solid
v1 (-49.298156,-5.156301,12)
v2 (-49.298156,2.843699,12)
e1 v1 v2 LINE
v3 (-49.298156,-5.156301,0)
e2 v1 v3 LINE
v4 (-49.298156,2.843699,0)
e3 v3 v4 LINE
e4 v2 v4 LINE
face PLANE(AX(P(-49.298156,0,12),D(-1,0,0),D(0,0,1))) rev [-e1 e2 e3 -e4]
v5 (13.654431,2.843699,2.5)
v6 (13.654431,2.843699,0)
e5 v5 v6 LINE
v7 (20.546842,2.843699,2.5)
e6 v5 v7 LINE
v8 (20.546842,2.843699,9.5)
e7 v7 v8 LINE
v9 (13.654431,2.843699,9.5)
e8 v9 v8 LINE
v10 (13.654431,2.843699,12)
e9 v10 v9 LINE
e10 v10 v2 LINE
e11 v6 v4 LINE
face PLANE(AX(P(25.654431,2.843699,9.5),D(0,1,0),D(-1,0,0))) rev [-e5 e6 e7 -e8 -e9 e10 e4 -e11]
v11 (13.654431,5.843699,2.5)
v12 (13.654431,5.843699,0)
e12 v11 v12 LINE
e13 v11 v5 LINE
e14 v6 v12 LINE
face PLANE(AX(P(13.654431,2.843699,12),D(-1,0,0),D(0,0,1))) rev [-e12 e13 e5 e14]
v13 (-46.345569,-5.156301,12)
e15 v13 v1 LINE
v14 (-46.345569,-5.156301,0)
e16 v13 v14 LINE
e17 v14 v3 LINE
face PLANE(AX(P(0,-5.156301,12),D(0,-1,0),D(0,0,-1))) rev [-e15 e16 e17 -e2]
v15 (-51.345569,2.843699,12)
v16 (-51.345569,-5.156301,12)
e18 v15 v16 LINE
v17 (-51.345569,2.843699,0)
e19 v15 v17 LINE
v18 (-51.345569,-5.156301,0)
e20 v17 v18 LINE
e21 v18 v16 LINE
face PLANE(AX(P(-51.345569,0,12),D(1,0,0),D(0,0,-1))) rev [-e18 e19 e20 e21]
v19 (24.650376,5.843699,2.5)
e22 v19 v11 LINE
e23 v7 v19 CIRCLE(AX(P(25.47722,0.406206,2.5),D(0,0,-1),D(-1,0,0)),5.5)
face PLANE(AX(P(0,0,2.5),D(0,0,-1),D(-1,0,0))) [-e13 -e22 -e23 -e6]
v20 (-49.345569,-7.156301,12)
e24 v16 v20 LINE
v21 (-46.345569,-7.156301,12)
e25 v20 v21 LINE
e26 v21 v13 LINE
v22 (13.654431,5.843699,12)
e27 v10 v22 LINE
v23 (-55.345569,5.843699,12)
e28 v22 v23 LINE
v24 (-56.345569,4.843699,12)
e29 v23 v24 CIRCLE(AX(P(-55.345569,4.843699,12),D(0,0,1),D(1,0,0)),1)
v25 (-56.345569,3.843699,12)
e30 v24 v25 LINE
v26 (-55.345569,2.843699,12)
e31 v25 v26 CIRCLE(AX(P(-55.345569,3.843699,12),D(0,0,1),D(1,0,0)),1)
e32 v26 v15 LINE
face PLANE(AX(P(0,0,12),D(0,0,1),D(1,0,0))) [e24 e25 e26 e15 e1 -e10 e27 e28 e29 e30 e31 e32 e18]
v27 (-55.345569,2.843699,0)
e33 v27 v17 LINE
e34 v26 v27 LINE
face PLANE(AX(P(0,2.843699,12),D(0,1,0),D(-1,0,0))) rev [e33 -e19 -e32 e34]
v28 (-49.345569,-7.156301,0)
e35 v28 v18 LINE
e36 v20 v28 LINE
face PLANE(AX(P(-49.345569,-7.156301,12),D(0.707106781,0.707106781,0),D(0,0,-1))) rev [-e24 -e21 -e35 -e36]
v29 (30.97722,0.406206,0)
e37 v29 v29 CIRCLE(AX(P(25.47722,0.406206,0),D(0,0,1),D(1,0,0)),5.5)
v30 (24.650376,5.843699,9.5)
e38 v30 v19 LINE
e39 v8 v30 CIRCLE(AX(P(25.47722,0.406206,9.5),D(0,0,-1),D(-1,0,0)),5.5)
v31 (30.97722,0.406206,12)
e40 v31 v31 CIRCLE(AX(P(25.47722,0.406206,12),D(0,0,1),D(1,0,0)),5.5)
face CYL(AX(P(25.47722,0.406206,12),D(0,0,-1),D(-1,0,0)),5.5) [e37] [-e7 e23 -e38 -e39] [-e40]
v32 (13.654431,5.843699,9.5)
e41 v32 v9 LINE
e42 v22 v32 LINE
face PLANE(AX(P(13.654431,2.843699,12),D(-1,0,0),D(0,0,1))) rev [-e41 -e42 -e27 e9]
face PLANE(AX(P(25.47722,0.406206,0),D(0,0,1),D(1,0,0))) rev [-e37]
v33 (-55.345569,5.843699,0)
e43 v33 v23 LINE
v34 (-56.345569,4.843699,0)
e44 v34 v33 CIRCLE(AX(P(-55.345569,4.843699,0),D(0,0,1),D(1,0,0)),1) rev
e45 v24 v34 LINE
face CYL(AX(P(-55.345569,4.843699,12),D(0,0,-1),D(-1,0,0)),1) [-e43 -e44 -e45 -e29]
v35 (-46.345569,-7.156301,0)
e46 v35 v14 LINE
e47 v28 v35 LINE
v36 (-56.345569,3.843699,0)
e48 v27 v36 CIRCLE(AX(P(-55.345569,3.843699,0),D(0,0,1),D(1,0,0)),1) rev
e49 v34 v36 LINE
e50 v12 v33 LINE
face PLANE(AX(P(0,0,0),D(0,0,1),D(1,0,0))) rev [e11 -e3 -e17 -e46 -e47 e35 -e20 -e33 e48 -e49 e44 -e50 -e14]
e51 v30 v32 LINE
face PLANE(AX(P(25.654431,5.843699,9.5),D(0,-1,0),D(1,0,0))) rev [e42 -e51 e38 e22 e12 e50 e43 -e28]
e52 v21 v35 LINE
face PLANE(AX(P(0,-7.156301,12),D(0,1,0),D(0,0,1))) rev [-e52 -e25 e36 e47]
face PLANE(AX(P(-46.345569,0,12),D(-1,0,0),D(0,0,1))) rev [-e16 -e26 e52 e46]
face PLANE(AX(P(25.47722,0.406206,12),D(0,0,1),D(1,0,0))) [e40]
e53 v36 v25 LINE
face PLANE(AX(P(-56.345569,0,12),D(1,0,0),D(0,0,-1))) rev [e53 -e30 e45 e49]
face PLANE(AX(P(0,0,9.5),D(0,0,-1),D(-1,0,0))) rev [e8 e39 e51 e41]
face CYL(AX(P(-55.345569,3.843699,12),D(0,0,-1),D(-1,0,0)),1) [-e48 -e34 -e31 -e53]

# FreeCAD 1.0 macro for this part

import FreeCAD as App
import Part
import Sketcher
from FreeCAD import Vector
Q = App.Units.Quantity


def edges_at(feature, points):
    """Names of the edges that pass closest to the given points."""
    edges = feature.Shape.Edges
    near = lambda p: min(range(len(edges)), key=lambda i: edges[i].distToShape(Part.Vertex(*p))[0])
    return sorted({f"Edge{near(p) + 1}" for p in points})


def add_polygon(sketch, points):
    """Adds a closed chain of lines whose ends are joined by coincident constraints."""
    first, n = sketch.GeometryCount, len(points)
    for a, b in zip(points, points[1:] + points[:1]):
        sketch.addGeometry(Part.LineSegment(App.Vector(*a, 0), App.Vector(*b, 0)), False)
    for i in range(n):
        sketch.addConstraint(Sketcher.Constraint("Coincident", first + i, 2, first + (i + 1) % n, 1))

doc = App.newDocument("Part")
body = doc.addObject("PartDesign::Body", "Body")

# Sketch on XY plane
sketch1 = body.newObject("Sketcher::SketchObject", "Sketch")
sketch1.AttachmentSupport = (doc.getObject("XY_Plane"), [""])
sketch1.MapMode = "FlatFace"
sketch1.addGeometry(Part.Circle(Vector(25, 0, 0), Vector(0, 0, 1), 6), False)
sketch1.addConstraint(Sketcher.Constraint("Diameter", 0, Q("11 mm")))
sketch1.addConstraint(Sketcher.Constraint("DistanceX", -1, 1, 0, 3, Q("25.47722 mm")))
sketch1.addConstraint(Sketcher.Constraint("DistanceY", -1, 1, 0, 3, Q("0.406206 mm")))
pad1 = body.newObject("PartDesign::Pad", "Pad")
pad1.Profile = sketch1
pad1.Length = 12

# Sketch on XY plane
sketch2 = body.newObject("Sketcher::SketchObject", "Sketch001")
sketch2.AttachmentSupport = (doc.getObject("XY_Plane"), [""])
sketch2.MapMode = "FlatFace"
sketch2.AttachmentOffset = App.Placement(Vector(0, 0, 2.5), App.Rotation())
add_polygon(sketch2, [(13.7, 5.8), (13.7, 2.8), (25.7, 2.8), (25.7, 5.8)])  # lines 0-3
sketch2.addConstraint(Sketcher.Constraint("Vertical", 0))
sketch2.addConstraint(Sketcher.Constraint("Horizontal", 1))
sketch2.addConstraint(Sketcher.Constraint("Vertical", 2))
sketch2.addConstraint(Sketcher.Constraint("Horizontal", 3))
sketch2.addConstraint(Sketcher.Constraint("DistanceX", 1, 1, 1, 2, Q("12 mm")))
sketch2.addConstraint(Sketcher.Constraint("DistanceY", 0, 2, 0, 1, Q("3 mm")))
sketch2.addConstraint(Sketcher.Constraint("DistanceY", -1, 1, 0, 2, Q("2.843699 mm")))
sketch2.addConstraint(Sketcher.Constraint("DistanceX", -1, 1, 0, 2, Q("13.654431 mm")))
pad2 = body.newObject("PartDesign::Pad", "Pad001")
pad2.Profile = sketch2
pad2.Length = 7

# Sketch on XY plane
sketch3 = body.newObject("Sketcher::SketchObject", "Sketch002")
sketch3.AttachmentSupport = (doc.getObject("XY_Plane"), [""])
sketch3.MapMode = "FlatFace"
add_polygon(sketch3, [(-49.3, 2.8), (13.7, 2.8), (13.7, 5.8), (-56.3, 5.8), (-56.3, 2.8), (-51.3, 2.8), (-51.3, -7.2), (-46.3, -7.2), (-46.3, -5.2), (-49.3, -5.2)])  # lines 0-9
sketch3.addConstraint(Sketcher.Constraint("Horizontal", 0))
sketch3.addConstraint(Sketcher.Constraint("Vertical", 1))
sketch3.addConstraint(Sketcher.Constraint("Horizontal", 2))
sketch3.addConstraint(Sketcher.Constraint("Vertical", 3))
sketch3.addConstraint(Sketcher.Constraint("Horizontal", 4))
sketch3.addConstraint(Sketcher.Constraint("Vertical", 5))
sketch3.addConstraint(Sketcher.Constraint("Horizontal", 6))
sketch3.addConstraint(Sketcher.Constraint("Vertical", 7))
sketch3.addConstraint(Sketcher.Constraint("Horizontal", 8))
sketch3.addConstraint(Sketcher.Constraint("Vertical", 9))
sketch3.addConstraint(Sketcher.Constraint("Horizontal", 0, 2, 3, 2))
sketch3.addConstraint(Sketcher.Constraint("Equal", 4, 6))
sketch3.addConstraint(Sketcher.Constraint("DistanceX", 2, 2, 2, 1, Q("70 mm")))
sketch3.addConstraint(Sketcher.Constraint("DistanceX", 4, 1, 4, 2, Q("5 mm")))
sketch3.addConstraint(Sketcher.Constraint("DistanceY", 1, 1, 1, 2, Q("3 mm")))
sketch3.addConstraint(Sketcher.Constraint("DistanceY", 5, 2, 5, 1, Q("10 mm")))
sketch3.addConstraint(Sketcher.Constraint("DistanceY", 7, 1, 7, 2, Q("2 mm")))
sketch3.addConstraint(Sketcher.Constraint("DistanceY", -1, 1, 0, 2, Q("2.843699 mm")))
sketch3.addConstraint(Sketcher.Constraint("DistanceX", 0, 1, 0, 2, Q("62.952587 mm")))
sketch3.addConstraint(Sketcher.Constraint("DistanceX", -1, 1, 0, 2, Q("13.654431 mm")))
pad3 = body.newObject("PartDesign::Pad", "Pad002")
pad3.Profile = sketch3
pad3.Length = 12
doc.recompute()

chamfer = body.newObject("PartDesign::Chamfer", "Chamfer")
chamfer.Base = (pad3, edges_at(pad3, [(-51.346, -7.156, 6)]))
chamfer.Size = 2
doc.recompute()

fillet = body.newObject("PartDesign::Fillet", "Fillet")
fillet.Base = (chamfer, edges_at(chamfer, [(-56.346, 5.844, 6), (-56.346, 2.844, 6)]))
fillet.Radius = 1

doc.recompute()
